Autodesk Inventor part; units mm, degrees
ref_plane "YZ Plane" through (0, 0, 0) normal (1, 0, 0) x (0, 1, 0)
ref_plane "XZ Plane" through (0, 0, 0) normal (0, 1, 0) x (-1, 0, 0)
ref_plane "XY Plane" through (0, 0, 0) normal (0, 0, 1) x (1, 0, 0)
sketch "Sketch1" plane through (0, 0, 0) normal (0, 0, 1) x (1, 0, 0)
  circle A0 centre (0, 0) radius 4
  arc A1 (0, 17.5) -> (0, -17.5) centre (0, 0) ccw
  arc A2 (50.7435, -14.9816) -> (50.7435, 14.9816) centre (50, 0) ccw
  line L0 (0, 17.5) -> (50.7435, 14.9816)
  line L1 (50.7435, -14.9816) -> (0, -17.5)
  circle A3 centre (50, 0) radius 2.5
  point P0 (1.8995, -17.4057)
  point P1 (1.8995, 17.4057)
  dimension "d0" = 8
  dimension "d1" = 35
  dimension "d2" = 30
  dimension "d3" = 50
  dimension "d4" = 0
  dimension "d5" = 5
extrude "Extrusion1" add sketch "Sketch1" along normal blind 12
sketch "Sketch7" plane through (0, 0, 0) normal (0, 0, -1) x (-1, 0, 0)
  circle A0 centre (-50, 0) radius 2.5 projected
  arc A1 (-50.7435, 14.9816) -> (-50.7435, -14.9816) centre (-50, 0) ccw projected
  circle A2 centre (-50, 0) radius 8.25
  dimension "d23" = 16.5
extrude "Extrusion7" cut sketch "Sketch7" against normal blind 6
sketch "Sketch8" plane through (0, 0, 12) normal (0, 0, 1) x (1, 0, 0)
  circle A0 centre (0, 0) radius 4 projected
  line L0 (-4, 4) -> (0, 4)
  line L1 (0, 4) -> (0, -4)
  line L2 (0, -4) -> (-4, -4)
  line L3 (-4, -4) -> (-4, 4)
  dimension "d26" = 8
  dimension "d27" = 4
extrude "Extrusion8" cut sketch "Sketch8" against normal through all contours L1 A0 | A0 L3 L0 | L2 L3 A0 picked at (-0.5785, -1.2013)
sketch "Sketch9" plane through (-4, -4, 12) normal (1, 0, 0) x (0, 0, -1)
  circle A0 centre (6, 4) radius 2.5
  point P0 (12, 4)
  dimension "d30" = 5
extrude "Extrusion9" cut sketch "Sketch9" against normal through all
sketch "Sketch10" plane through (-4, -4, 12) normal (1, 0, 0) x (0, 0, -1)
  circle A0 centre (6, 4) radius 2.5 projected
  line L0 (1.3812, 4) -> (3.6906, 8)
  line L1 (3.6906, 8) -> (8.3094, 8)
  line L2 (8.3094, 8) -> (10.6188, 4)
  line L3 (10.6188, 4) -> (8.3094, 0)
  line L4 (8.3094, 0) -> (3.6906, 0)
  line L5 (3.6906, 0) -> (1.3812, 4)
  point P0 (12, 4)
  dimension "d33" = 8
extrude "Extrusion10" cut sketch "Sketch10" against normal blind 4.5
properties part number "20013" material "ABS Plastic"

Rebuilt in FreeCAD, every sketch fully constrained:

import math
import FreeCAD as App
import Part
import Sketcher
from FreeCAD import Vector
Q = App.Units.Quantity


def add_polygon(sketch, points):
    """Adds a closed chain of lines whose ends are joined by coincident constraints."""
    first, n = sketch.GeometryCount, len(points)
    for a, b in zip(points, points[1:] + points[:1]):
        sketch.addGeometry(Part.LineSegment(App.Vector(*a, 0), App.Vector(*b, 0)), False)
    for i in range(n):
        sketch.addConstraint(Sketcher.Constraint("Coincident", first + i, 2, first + (i + 1) % n, 1))

doc = App.newDocument("Part")
body = doc.addObject("PartDesign::Body", "Body")

# Sketch on XY plane
sketch1 = body.newObject("Sketcher::SketchObject", "Sketch")
sketch1.AttachmentSupport = (doc.getObject("XY_Plane"), [""])
sketch1.MapMode = "FlatFace"
sketch1.addGeometry([
    Part.LineSegment(Vector(50.7, 15, 0), Vector(0, 17.5, 0)),  # 0
    Part.ArcOfCircle(Part.Circle(Vector(0, 0, 0), Vector(0, 0, 1), 17.5), math.radians(90), math.radians(270)),  # 1
    Part.LineSegment(Vector(0, -17.5, 0), Vector(50.7, -15, 0)),  # 2
    Part.ArcOfCircle(Part.Circle(Vector(50, 0, 0), Vector(0, 0, 1), 15), math.radians(-87), math.radians(87)),  # 3
    Part.Circle(Vector(0, 0, 0), Vector(0, 0, 1), 4),  # 4
    Part.Circle(Vector(50, 0, 0), Vector(0, 0, 1), 2.5),  # 5
], False)
sketch1.addConstraint([
    Sketcher.Constraint("Coincident", 0, 2, 1, 1),
    Sketcher.Constraint("Coincident", 1, 2, 2, 1),
    Sketcher.Constraint("Tangent", 2, 2, 3, 1),
    Sketcher.Constraint("Tangent", 3, 2, 0, 1),
    Sketcher.Constraint("Coincident", 1, 3, -1, 1),
    Sketcher.Constraint("Coincident", 4, 3, -1, 1),
    Sketcher.Constraint("Coincident", 5, 3, 3, 3),
    Sketcher.Constraint("Symmetric", 2, 2, 3, 2, -1),
    Sketcher.Constraint("PointOnObject", 0, 2, -2),
    Sketcher.Constraint("Diameter", 4, Q("8 mm")),
    Sketcher.Constraint("Diameter", 5, Q("5 mm")),
    Sketcher.Constraint("Radius", 3, Q("15 mm")),
    Sketcher.Constraint("Radius", 1, Q("17.5 mm")),
    Sketcher.Constraint("DistanceX", -1, 1, 3, 3, Q("50 mm")),
])
pad1 = body.newObject("PartDesign::Pad", "Pad")
pad1.Profile = sketch1
pad1.Length = 12

# Sketch on XY plane
sketch2 = body.newObject("Sketcher::SketchObject", "Sketch001")
sketch2.AttachmentSupport = (doc.getObject("XY_Plane"), [""])
sketch2.MapMode = "FlatFace"
sketch2.addGeometry([
    Part.Circle(Vector(50, 0, 0), Vector(0, 0, 1), 8.2),
    Part.Circle(Vector(50, 0, 0), Vector(0, 0, 1), 2.5),
], False)
sketch2.addConstraint([
    Sketcher.Constraint("Coincident", 1, 3, 0, 3),
    Sketcher.Constraint("PointOnObject", 0, 3, -1),
    Sketcher.Constraint("Diameter", 0, Q("16.5 mm")),
    Sketcher.Constraint("Diameter", 1, Q("5 mm")),
    Sketcher.Constraint("DistanceX", -1, 1, 0, 3, Q("50 mm")),
])
pocket1 = body.newObject("PartDesign::Pocket", "Pocket")
pocket1.Profile = sketch2
pocket1.Length = 6
pocket1.Reversed = True

# Sketch on XY plane
sketch3 = body.newObject("Sketcher::SketchObject", "Sketch002")
sketch3.AttachmentSupport = (doc.getObject("XY_Plane"), [""])
sketch3.MapMode = "FlatFace"
sketch3.AttachmentOffset = App.Placement(Vector(0, 0, 12), App.Rotation())
add_polygon(sketch3, [(0, -4), (0, 4), (-4, 4), (-4, -4)])  # lines 0-3
sketch3.addConstraint([
    Sketcher.Constraint("Vertical", 0),
    Sketcher.Constraint("Horizontal", 1),
    Sketcher.Constraint("Vertical", 2),
    Sketcher.Constraint("Horizontal", 3),
    Sketcher.Constraint("Symmetric", 0, 2, 3, 2, -1, 1),
    Sketcher.Constraint("DistanceX", 1, 2, 1, 1, Q("4 mm")),
    Sketcher.Constraint("DistanceY", 0, 1, 0, 2, Q("8 mm")),
])
pocket2 = body.newObject("PartDesign::Pocket", "Pocket001")
pocket2.Profile = sketch3
pocket2.Type = "ThroughAll"

# Sketch on YZ plane
sketch4 = body.newObject("Sketcher::SketchObject", "Sketch003")
sketch4.AttachmentSupport = (doc.getObject("YZ_Plane"), [""])
sketch4.MapMode = "FlatFace"
sketch4.AttachmentOffset = App.Placement(Vector(0, 0, -4), App.Rotation())
sketch4.addGeometry(Part.Circle(Vector(0, 6, 0), Vector(0, 0, 1), 2.5), False)
sketch4.addConstraint([
    Sketcher.Constraint("PointOnObject", 0, 3, -2),
    Sketcher.Constraint("Diameter", 0, Q("5 mm")),
    Sketcher.Constraint("DistanceY", -1, 1, 0, 3, Q("6 mm")),
])
pocket3 = body.newObject("PartDesign::Pocket", "Pocket002")
pocket3.Profile = sketch4
pocket3.Type = "ThroughAll"

# Sketch on YZ plane
sketch5 = body.newObject("Sketcher::SketchObject", "Sketch004")
sketch5.AttachmentSupport = (doc.getObject("YZ_Plane"), [""])
sketch5.MapMode = "FlatFace"
sketch5.AttachmentOffset = App.Placement(Vector(0, 0, -4), App.Rotation())
add_polygon(sketch5, [(4, 8.3), (0, 10.6), (-4, 8.3), (-4, 3.7), (0, 1.4), (4, 3.7)])  # lines 0-5
sketch5.addGeometry(Part.Circle(Vector(0, 6, 0), Vector(0, 0, 1), 2.5), False)  # 6
sketch5.addConstraint([
    Sketcher.Constraint("Vertical", 2),
    Sketcher.Constraint("Vertical", 5),
    Sketcher.Constraint("Symmetric", 2, 2, 4, 2, -2),
    Sketcher.Constraint("PointOnObject", 6, 3, -2),
    Sketcher.Constraint("PointOnObject", 0, 2, -2),
    Sketcher.Constraint("PointOnObject", 3, 2, -2),
    Sketcher.Constraint("Parallel", 0, 3),
    Sketcher.Constraint("Parallel", 1, 4),
    Sketcher.Constraint("Diameter", 6, Q("5 mm")),
    Sketcher.Constraint("DistanceX", 2, 2, 4, 2, Q("8 mm")),
    Sketcher.Constraint("Angle", 0, Q("150 deg")),
    Sketcher.Constraint("DistanceY", -1, 1, 6, 3, Q("6 mm")),
    Sketcher.Constraint("DistanceY", 2, 2, 2, 1, Q("4.6188 mm")),
    Sketcher.Constraint("DistanceY", -1, 1, 0, 2, Q("10.6188 mm")),
])
pocket4 = body.newObject("PartDesign::Pocket", "Pocket003")
pocket4.Profile = sketch5
pocket4.Length = 4.5

doc.recompute()
